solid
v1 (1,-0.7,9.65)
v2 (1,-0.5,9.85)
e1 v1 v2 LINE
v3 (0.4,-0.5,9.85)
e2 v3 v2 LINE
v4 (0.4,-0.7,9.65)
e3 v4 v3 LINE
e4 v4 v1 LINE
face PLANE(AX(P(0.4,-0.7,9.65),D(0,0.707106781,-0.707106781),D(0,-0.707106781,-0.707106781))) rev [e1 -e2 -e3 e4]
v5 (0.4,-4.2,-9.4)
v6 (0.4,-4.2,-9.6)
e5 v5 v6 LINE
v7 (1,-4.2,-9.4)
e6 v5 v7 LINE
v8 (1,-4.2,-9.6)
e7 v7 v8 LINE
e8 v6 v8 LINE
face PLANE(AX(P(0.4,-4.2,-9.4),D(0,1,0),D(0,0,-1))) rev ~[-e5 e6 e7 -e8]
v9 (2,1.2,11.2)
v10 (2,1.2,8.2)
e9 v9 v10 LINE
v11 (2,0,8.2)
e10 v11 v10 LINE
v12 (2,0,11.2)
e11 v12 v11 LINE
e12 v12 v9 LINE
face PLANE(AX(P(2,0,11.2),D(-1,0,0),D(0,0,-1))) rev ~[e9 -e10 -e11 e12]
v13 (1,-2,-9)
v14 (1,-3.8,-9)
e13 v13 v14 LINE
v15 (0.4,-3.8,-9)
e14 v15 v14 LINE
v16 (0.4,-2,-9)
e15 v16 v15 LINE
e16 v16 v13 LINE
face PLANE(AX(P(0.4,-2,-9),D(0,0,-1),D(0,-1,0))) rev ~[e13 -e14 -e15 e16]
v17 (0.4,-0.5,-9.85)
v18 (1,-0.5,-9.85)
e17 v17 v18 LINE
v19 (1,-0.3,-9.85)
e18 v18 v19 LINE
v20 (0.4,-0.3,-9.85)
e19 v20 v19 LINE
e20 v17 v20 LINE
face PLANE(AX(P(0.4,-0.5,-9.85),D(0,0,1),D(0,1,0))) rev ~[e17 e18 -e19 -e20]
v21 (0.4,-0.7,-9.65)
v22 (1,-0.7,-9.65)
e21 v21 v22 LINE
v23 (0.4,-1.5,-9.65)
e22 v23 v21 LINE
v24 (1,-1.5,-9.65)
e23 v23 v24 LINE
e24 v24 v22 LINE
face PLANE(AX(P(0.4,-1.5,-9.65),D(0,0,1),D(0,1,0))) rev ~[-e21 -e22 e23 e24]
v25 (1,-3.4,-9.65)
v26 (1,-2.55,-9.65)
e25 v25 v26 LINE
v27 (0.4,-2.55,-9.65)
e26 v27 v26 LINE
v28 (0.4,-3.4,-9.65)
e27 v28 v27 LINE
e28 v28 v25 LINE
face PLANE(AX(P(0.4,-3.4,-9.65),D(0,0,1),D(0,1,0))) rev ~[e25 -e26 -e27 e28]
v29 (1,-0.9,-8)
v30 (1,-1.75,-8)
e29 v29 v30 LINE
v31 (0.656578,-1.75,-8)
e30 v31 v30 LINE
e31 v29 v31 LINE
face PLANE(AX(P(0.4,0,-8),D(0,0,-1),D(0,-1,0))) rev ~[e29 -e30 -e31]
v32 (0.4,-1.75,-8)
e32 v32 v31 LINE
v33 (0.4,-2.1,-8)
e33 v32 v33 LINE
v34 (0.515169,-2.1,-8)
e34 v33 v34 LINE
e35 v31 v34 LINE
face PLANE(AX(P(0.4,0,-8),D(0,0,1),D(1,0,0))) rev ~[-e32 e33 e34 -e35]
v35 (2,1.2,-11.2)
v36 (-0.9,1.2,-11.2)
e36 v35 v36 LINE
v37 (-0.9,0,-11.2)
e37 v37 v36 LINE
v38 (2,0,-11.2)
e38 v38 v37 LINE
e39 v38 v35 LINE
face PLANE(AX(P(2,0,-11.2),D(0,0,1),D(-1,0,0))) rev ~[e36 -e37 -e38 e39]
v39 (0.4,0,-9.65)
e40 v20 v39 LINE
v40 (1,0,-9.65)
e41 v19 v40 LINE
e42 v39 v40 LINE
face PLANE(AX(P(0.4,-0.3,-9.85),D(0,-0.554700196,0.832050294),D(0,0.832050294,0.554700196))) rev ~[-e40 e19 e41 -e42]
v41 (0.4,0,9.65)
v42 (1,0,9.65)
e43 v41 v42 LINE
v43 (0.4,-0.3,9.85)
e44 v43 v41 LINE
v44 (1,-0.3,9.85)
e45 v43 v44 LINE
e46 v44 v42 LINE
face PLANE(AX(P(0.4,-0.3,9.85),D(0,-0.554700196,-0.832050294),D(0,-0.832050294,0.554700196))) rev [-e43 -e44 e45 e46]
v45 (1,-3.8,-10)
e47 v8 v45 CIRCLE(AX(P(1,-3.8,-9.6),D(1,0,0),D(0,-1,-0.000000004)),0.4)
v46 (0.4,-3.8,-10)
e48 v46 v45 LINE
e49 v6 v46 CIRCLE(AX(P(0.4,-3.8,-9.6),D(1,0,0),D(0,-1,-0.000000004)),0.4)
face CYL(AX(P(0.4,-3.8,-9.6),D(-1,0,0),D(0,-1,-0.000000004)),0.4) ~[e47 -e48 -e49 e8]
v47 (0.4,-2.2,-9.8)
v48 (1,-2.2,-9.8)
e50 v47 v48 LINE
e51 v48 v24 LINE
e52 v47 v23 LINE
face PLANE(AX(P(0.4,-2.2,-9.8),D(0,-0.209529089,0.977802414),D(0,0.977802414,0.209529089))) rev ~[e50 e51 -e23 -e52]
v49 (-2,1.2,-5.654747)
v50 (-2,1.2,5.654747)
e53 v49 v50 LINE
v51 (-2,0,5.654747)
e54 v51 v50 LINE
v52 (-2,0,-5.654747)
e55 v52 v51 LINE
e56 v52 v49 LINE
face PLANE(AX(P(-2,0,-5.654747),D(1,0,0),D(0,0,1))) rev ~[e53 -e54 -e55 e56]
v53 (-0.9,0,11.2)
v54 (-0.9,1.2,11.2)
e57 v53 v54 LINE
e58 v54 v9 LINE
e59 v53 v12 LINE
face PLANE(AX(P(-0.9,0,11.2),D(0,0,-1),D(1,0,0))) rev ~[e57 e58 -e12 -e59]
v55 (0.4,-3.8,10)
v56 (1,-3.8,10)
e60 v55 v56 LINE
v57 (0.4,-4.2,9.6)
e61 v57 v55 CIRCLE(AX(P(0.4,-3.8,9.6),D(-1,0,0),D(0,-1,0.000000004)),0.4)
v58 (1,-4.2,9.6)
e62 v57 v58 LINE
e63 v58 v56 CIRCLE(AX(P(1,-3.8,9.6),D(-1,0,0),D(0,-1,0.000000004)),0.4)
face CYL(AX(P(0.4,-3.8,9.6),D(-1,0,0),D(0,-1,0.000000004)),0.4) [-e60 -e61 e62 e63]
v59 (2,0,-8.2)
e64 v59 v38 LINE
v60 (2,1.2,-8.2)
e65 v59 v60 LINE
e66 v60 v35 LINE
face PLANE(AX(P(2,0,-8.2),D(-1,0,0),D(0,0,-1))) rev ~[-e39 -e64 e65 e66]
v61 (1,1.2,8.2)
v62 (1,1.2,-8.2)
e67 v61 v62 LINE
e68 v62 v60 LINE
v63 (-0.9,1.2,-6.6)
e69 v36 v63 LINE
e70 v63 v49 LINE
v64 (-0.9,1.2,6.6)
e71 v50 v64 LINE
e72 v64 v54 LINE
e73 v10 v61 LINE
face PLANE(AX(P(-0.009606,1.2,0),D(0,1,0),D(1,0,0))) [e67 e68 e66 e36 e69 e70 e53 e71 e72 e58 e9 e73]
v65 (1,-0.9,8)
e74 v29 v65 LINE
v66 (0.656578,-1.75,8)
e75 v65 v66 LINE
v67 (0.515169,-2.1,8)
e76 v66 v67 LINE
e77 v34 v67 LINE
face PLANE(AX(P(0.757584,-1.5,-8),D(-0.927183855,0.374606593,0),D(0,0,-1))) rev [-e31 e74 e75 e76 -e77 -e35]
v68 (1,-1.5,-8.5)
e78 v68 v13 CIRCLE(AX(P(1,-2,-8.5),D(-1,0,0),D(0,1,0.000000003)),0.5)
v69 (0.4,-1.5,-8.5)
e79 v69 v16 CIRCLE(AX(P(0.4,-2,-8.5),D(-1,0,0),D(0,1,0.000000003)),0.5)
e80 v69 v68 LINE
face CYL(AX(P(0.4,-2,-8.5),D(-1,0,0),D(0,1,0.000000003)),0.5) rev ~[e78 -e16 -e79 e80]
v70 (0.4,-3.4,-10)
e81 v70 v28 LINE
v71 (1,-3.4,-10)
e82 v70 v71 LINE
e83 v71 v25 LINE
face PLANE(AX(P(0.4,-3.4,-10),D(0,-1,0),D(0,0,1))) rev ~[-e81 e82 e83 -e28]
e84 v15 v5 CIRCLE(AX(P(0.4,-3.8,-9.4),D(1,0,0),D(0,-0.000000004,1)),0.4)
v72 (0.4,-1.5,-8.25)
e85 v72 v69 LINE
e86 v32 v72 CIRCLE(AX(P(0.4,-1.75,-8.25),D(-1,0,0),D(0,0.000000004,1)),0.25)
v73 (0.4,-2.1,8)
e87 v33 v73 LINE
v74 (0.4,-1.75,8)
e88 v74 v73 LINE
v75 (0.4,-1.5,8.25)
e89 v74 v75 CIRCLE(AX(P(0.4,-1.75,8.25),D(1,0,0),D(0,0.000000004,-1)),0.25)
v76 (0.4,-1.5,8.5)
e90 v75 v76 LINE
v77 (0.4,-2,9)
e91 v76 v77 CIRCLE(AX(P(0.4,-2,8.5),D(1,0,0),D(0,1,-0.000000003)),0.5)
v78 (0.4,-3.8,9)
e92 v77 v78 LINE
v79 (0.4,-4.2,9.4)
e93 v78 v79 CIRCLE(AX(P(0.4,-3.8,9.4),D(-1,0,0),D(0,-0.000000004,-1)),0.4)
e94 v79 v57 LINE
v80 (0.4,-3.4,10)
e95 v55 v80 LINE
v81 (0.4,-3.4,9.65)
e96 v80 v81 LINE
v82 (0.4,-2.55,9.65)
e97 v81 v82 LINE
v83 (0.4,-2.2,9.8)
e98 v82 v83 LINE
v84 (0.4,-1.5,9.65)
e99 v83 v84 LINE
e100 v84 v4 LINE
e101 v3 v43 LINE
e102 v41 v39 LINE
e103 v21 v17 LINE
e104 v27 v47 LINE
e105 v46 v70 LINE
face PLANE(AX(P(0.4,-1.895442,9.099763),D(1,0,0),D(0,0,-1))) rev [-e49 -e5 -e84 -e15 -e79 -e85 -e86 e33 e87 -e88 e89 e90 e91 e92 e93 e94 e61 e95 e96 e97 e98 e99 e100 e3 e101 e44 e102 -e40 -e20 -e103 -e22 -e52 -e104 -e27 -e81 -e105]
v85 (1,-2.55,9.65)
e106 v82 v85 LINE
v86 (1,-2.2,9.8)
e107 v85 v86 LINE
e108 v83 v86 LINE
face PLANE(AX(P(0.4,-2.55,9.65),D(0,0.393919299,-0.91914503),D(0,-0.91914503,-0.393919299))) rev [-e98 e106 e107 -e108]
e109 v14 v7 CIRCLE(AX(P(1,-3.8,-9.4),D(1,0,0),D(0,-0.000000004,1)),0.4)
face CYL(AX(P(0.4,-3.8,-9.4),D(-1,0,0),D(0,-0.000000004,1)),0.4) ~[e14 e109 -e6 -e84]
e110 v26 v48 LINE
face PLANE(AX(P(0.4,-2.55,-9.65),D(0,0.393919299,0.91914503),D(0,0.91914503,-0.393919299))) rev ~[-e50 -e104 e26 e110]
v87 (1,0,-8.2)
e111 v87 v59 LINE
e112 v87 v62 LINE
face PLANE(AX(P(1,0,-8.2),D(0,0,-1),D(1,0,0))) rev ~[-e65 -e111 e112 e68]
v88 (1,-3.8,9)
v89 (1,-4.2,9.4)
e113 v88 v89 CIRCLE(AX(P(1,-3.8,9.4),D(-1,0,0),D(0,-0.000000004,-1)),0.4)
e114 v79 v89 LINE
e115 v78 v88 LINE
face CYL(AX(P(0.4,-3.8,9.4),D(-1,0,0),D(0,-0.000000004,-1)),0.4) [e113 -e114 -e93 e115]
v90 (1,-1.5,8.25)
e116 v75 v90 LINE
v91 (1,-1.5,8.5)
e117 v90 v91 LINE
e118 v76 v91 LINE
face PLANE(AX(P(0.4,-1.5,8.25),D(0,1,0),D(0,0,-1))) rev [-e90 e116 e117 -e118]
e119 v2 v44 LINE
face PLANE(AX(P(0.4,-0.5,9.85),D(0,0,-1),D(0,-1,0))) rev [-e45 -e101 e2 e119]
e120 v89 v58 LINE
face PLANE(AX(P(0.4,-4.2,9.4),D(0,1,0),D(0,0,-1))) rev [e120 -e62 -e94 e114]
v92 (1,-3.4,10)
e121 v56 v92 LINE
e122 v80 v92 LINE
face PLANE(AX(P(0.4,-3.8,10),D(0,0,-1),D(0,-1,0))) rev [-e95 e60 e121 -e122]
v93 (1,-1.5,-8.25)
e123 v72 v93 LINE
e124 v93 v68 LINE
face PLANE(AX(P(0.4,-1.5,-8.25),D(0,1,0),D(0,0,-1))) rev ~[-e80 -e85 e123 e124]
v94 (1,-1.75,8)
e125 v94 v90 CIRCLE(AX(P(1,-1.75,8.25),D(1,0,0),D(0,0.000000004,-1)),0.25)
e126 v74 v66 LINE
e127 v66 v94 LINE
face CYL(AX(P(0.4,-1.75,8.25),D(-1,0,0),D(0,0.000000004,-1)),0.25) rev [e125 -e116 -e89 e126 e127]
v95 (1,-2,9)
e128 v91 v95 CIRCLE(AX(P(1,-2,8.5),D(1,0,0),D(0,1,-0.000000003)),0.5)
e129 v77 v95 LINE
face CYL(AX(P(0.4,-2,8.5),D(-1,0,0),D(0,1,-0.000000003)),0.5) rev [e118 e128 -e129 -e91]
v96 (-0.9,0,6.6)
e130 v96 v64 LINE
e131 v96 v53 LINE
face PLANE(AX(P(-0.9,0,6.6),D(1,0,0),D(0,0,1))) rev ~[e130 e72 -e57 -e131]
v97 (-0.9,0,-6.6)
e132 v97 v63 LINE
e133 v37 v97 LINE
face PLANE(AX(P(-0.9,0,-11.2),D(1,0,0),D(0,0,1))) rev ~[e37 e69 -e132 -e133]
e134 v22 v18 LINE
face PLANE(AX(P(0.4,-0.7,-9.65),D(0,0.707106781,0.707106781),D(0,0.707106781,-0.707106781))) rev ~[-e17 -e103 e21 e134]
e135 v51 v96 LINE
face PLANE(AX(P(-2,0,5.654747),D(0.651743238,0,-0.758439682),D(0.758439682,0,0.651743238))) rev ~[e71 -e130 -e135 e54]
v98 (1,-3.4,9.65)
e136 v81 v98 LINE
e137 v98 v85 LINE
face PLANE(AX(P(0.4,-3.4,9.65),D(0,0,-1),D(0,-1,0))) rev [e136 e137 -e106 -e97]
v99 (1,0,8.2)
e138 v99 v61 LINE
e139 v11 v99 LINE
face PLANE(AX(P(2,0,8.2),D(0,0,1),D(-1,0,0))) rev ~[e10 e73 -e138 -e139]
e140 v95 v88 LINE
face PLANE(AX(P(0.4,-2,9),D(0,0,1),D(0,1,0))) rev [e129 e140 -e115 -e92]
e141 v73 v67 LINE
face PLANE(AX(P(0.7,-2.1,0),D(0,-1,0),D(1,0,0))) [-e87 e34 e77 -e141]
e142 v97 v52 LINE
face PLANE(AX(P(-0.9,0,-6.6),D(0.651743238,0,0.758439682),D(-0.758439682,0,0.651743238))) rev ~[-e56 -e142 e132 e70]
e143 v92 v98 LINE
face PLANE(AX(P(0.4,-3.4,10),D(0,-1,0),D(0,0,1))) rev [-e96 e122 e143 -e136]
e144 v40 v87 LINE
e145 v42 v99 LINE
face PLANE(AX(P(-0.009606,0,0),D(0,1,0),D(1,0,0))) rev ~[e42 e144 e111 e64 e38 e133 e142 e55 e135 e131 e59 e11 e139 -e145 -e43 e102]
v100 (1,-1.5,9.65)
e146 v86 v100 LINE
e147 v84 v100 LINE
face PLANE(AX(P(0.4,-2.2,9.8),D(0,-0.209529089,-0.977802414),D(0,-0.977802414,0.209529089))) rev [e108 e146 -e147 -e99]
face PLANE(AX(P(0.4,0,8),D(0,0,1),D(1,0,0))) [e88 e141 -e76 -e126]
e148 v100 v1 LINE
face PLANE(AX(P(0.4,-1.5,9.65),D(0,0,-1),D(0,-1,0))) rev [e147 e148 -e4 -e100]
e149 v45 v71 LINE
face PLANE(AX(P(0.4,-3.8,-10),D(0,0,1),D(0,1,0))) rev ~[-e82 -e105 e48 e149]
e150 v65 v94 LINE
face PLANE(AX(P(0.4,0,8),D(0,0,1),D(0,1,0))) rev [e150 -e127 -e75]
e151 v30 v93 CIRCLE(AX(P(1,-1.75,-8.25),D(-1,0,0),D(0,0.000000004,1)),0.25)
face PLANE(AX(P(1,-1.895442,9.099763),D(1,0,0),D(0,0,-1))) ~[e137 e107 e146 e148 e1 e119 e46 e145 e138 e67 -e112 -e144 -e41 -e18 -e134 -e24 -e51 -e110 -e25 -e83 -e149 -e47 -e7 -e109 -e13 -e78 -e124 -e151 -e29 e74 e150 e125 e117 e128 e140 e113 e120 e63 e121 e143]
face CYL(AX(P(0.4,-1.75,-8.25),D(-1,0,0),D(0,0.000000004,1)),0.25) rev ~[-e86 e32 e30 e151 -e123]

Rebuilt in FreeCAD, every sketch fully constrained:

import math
import FreeCAD as App
import Part
import Sketcher
Q = App.Units.Quantity


def edges_at(feature, points):
    """Names of the edges that pass closest to the given points."""
    edges = feature.Shape.Edges
    near = lambda p: min(range(len(edges)), key=lambda i: edges[i].distToShape(Part.Vertex(*p))[0])
    return sorted({f"Edge{near(p) + 1}" for p in points})

doc = App.newDocument("Part")
body = doc.addObject("PartDesign::Body", "Body")

sketch1 = doc.addObject("Sketcher::SketchObject", "Sketch")
body.addObject(sketch1)
sketch1.AttachmentSupport = (doc.XZ_Plane, [""])
sketch1.MapMode = "FlatFace"
sketch1.addGeometry([
    Part.LineSegment(App.Vector(2, -8.2, 0), App.Vector(2, -11.2, 0)),
    Part.LineSegment(App.Vector(2, -11.2, 0), App.Vector(-0.9, -11.2, 0)),
    Part.LineSegment(App.Vector(-0.9, -11.2, 0), App.Vector(-0.9, -6.6, 0)),
    Part.LineSegment(App.Vector(-0.9, -6.6, 0), App.Vector(-2, -5.654747, 0)),
    Part.LineSegment(App.Vector(-2, -5.654747, 0), App.Vector(-2, 5.654747, 0)),
    Part.LineSegment(App.Vector(-2, 5.654747, 0), App.Vector(-0.9, 6.6, 0)),
    Part.LineSegment(App.Vector(-0.9, 6.6, 0), App.Vector(-0.9, 11.2, 0)),
    Part.LineSegment(App.Vector(-0.9, 11.2, 0), App.Vector(2, 11.2, 0)),
    Part.LineSegment(App.Vector(2, 11.2, 0), App.Vector(2, 8.2, 0)),
    Part.LineSegment(App.Vector(2, 8.2, 0), App.Vector(1, 8.2, 0)),
    Part.LineSegment(App.Vector(1, 8.2, 0), App.Vector(1, -8.2, 0)),
    Part.LineSegment(App.Vector(1, -8.2, 0), App.Vector(2, -8.2, 0)),
], False)
sketch1.addConstraint([
    Sketcher.Constraint("Coincident", 0, 2, 1, 1),
    Sketcher.Constraint("Coincident", 1, 2, 2, 1),
    Sketcher.Constraint("Coincident", 2, 2, 3, 1),
    Sketcher.Constraint("Coincident", 3, 2, 4, 1),
    Sketcher.Constraint("Coincident", 4, 2, 5, 1),
    Sketcher.Constraint("Coincident", 5, 2, 6, 1),
    Sketcher.Constraint("Coincident", 6, 2, 7, 1),
    Sketcher.Constraint("Coincident", 7, 2, 8, 1),
    Sketcher.Constraint("Coincident", 8, 2, 9, 1),
    Sketcher.Constraint("Coincident", 9, 2, 10, 1),
    Sketcher.Constraint("Coincident", 10, 2, 11, 1),
    Sketcher.Constraint("Coincident", 11, 2, 0, 1),
    Sketcher.Constraint("Vertical", 0),
    Sketcher.Constraint("Horizontal", 1),
    Sketcher.Constraint("Vertical", 2),
    Sketcher.Constraint("Vertical", 4),
    Sketcher.Constraint("Vertical", 6),
    Sketcher.Constraint("Horizontal", 7),
    Sketcher.Constraint("Vertical", 8),
    Sketcher.Constraint("Horizontal", 9),
    Sketcher.Constraint("Vertical", 10),
    Sketcher.Constraint("Horizontal", 11),
    Sketcher.Constraint("Symmetric", 2, 2, 5, 2, -1),
    Sketcher.Constraint("Symmetric", 0, 2, 7, 2, -1),
    Sketcher.Constraint("Equal", 0, 8),
    Sketcher.Constraint("Equal", 3, 5),
    Sketcher.Constraint("DistanceX", 9, 2, 9, 1, 1.0),
    Sketcher.Constraint("DistanceY", 0, 2, 0, 1, 3.0),
    Sketcher.Constraint("DistanceX", 1, 2, 1, 1, 2.9),
    Sketcher.Constraint("DistanceY", 2, 1, 2, 2, 4.6),
    Sketcher.Constraint("DistanceY", 10, 2, 10, 1, 16.4),
    Sketcher.Constraint("DistanceX", -1, 1, 0, 2, 2.0),
    Sketcher.Constraint("DistanceX", 3, 2, -1, 1, 2.0),
    Sketcher.Constraint("DistanceY", 4, 1, 4, 2, 11.309494),
])
pad1 = doc.addObject("PartDesign::Pad", "Pad")
body.addObject(pad1)
pad1.Profile = sketch1
pad1.Length = 1.2
pad1.Reversed = True

sketch2 = doc.addObject("Sketcher::SketchObject", "Sketch001")
body.addObject(sketch2)
sketch2.AttachmentSupport = (doc.XZ_Plane, [""])
sketch2.MapMode = "FlatFace"
sketch2.addGeometry([
    Part.LineSegment(App.Vector(0.4, 8, 0), App.Vector(0.4, -8, 0)),
    Part.LineSegment(App.Vector(0.4, -8, 0), App.Vector(1, -8, 0)),
    Part.LineSegment(App.Vector(1, -8, 0), App.Vector(1, 8, 0)),
    Part.LineSegment(App.Vector(1, 8, 0), App.Vector(0.4, 8, 0)),
], False)
sketch2.addConstraint([
    Sketcher.Constraint("Coincident", 0, 2, 1, 1),
    Sketcher.Constraint("Coincident", 1, 2, 2, 1),
    Sketcher.Constraint("Coincident", 2, 2, 3, 1),
    Sketcher.Constraint("Coincident", 3, 2, 0, 1),
    Sketcher.Constraint("Vertical", 0),
    Sketcher.Constraint("Horizontal", 1),
    Sketcher.Constraint("Vertical", 2),
    Sketcher.Constraint("Horizontal", 3),
    Sketcher.Constraint("DistanceY", 0, 2, 0, 1, 16.0),
    Sketcher.Constraint("DistanceX", 1, 1, 1, 2, 0.6),
    Sketcher.Constraint("DistanceY", 0, 2, -1, 1, 8.0),
    Sketcher.Constraint("DistanceX", -1, 1, 1, 2, 1.0),
])
pad2 = doc.addObject("PartDesign::Pad", "Pad001")
body.addObject(pad2)
pad2.Profile = sketch2
pad2.Length = 2.1
doc.recompute()

chamfer = doc.addObject("PartDesign::Chamfer", "Chamfer")
body.addObject(chamfer)
chamfer.Base = (pad2, edges_at(pad2, [(1, -2.1, 0)]))
chamfer.ChamferType = "Two distances"
chamfer.Size = 1.2
chamfer.Size2 = 0.484831
chamfer.FlipDirection = True

sketch3 = doc.addObject("Sketcher::SketchObject", "Sketch002")
body.addObject(sketch3)
sketch3.AttachmentSupport = (doc.YZ_Plane, [""])
sketch3.MapMode = "FlatFace"
sketch3.AttachmentOffset = App.Placement(App.Vector(0, 0, 0.4), App.Rotation())
sketch3.addGeometry([
    Part.LineSegment(App.Vector(-1.5, -8.5, 0), App.Vector(-1.5, -8.25, 0)),
    Part.ArcOfCircle(Part.Circle(App.Vector(-1.75, -8.25, 0), App.Vector(0, 0, 1), 0.25), math.radians(0), math.radians(90)),
    Part.LineSegment(App.Vector(-1.75, -8, 0), App.Vector(0, -8, 0)),
    Part.LineSegment(App.Vector(0, -8, 0), App.Vector(0, -9.65, 0)),
    Part.LineSegment(App.Vector(0, -9.65, 0), App.Vector(-0.3, -9.85, 0)),
    Part.LineSegment(App.Vector(-0.3, -9.85, 0), App.Vector(-0.5, -9.85, 0)),
    Part.LineSegment(App.Vector(-0.5, -9.85, 0), App.Vector(-0.7, -9.65, 0)),
    Part.LineSegment(App.Vector(-0.7, -9.65, 0), App.Vector(-1.5, -9.65, 0)),
    Part.LineSegment(App.Vector(-1.5, -9.65, 0), App.Vector(-2.2, -9.8, 0)),
    Part.LineSegment(App.Vector(-2.2, -9.8, 0), App.Vector(-2.55, -9.65, 0)),
    Part.LineSegment(App.Vector(-2.55, -9.65, 0), App.Vector(-3.4, -9.65, 0)),
    Part.LineSegment(App.Vector(-3.4, -9.65, 0), App.Vector(-3.4, -10, 0)),
    Part.LineSegment(App.Vector(-3.4, -10, 0), App.Vector(-3.8, -10, 0)),
    Part.ArcOfCircle(Part.Circle(App.Vector(-3.8, -9.6, 0), App.Vector(0, 0, 1), 0.4), math.radians(-180), math.radians(-90)),
    Part.LineSegment(App.Vector(-4.2, -9.6, 0), App.Vector(-4.2, -9.4, 0)),
    Part.ArcOfCircle(Part.Circle(App.Vector(-3.8, -9.4, 0), App.Vector(0, 0, 1), 0.4), math.radians(90), math.radians(180)),
    Part.LineSegment(App.Vector(-3.8, -9, 0), App.Vector(-2, -9, 0)),
    Part.ArcOfCircle(Part.Circle(App.Vector(-2, -8.5, 0), App.Vector(0, 0, 1), 0.5), math.radians(-90), math.radians(0)),
], False)
sketch3.addConstraint([
    Sketcher.Constraint("Tangent", 0, 2, 1, 1),
    Sketcher.Constraint("Tangent", 1, 2, 2, 1),
    Sketcher.Constraint("Coincident", 2, 2, 3, 1),
    Sketcher.Constraint("Coincident", 3, 2, 4, 1),
    Sketcher.Constraint("Coincident", 4, 2, 5, 1),
    Sketcher.Constraint("Coincident", 5, 2, 6, 1),
    Sketcher.Constraint("Coincident", 6, 2, 7, 1),
    Sketcher.Constraint("Coincident", 7, 2, 8, 1),
    Sketcher.Constraint("Coincident", 8, 2, 9, 1),
    Sketcher.Constraint("Coincident", 9, 2, 10, 1),
    Sketcher.Constraint("Coincident", 10, 2, 11, 1),
    Sketcher.Constraint("Coincident", 11, 2, 12, 1),
    Sketcher.Constraint("Tangent", 12, 2, 13, 2),
    Sketcher.Constraint("Tangent", 13, 1, 14, 1),
    Sketcher.Constraint("Tangent", 14, 2, 15, 2),
    Sketcher.Constraint("Tangent", 15, 1, 16, 1),
    Sketcher.Constraint("Tangent", 16, 2, 17, 1),
    Sketcher.Constraint("Tangent", 17, 2, 0, 1),
    Sketcher.Constraint("Vertical", 0),
    Sketcher.Constraint("Horizontal", 2),
    Sketcher.Constraint("Vertical", 3),
    Sketcher.Constraint("Horizontal", 5),
    Sketcher.Constraint("Horizontal", 7),
    Sketcher.Constraint("Horizontal", 10),
    Sketcher.Constraint("Vertical", 11),
    Sketcher.Constraint("Horizontal", 12),
    Sketcher.Constraint("Vertical", 14),
    Sketcher.Constraint("Horizontal", 16),
    Sketcher.Constraint("Equal", 13, 15),
    Sketcher.Constraint("PointOnObject", 2, 2, -2),
    Sketcher.Constraint("Horizontal", 3, 2, 6, 2),
    Sketcher.Constraint("Horizontal", 7, 2, 9, 2),
    Sketcher.Constraint("Vertical", 0, 2, 7, 2),
    Sketcher.Constraint("Equal", 5, 14),
    Sketcher.Constraint("Radius", 13, 0.4),
    Sketcher.Constraint("Radius", 17, 0.5),
    Sketcher.Constraint("Angle", 6, Q("135 deg")),
    Sketcher.Constraint("Radius", 1, 0.25),
    Sketcher.Constraint("DistanceX", 5, 2, 5, 1, 0.2),
    Sketcher.Constraint("DistanceX", 7, 2, 7, 1, 0.8),
    Sketcher.Constraint("DistanceX", 12, 2, 12, 1, 0.4),
    Sketcher.Constraint("DistanceX", 16, 1, 16, 2, 1.8),
    Sketcher.Constraint("DistanceX", 17, 3, -1, 1, 2.0),
    Sketcher.Constraint("DistanceY", 1, 2, -1, 1, 8.0),
    Sketcher.Constraint("DistanceY", 11, 2, -1, 1, 10.0),
    Sketcher.Constraint("DistanceX", 0, 2, 5, 2, 1.0),
    Sketcher.Constraint("DistanceX", 10, 2, 10, 1, 0.85),
    Sketcher.Constraint("DistanceY", 3, 2, 3, 1, 1.65),
    Sketcher.Constraint("DistanceX", 8, 2, -1, 1, 2.2),
    Sketcher.Constraint("DistanceY", 8, 2, -1, 1, 9.8),
])
pad3 = doc.addObject("PartDesign::Pad", "Pad002")
body.addObject(pad3)
pad3.Profile = sketch3
pad3.Length = 0.6
doc.recompute()

mirrored = doc.addObject("PartDesign::Mirrored", "Mirrored")
body.addObject(mirrored)
mirrored.Originals = [pad3]
mirrored.MirrorPlane = (doc.XY_Plane, [""])
body.Tip = mirrored

doc.recompute()
